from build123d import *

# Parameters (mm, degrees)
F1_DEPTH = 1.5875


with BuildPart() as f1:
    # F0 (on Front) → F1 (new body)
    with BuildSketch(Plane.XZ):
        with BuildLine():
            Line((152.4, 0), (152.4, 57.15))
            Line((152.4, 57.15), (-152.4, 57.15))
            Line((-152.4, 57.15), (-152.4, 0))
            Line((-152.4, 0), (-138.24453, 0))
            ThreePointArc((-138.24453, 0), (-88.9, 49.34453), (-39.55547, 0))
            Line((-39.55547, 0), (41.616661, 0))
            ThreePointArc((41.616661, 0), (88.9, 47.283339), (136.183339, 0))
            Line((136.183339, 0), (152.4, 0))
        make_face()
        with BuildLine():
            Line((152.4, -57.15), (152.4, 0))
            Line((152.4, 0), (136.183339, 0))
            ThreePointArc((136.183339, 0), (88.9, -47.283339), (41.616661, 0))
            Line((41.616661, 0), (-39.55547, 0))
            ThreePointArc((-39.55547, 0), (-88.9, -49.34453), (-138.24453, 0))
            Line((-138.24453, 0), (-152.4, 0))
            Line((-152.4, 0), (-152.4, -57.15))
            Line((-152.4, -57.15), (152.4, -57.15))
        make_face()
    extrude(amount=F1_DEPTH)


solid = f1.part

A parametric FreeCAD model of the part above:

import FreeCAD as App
import Part
import Sketcher

V = App.Vector
Q = App.Units.Quantity

doc = App.newDocument("Part")
body = doc.addObject("PartDesign::Body", "Body")

sketch1 = body.newObject("Sketcher::SketchObject", "Sketch")
sketch1.AttachmentSupport = (doc.getObject("XZ_Plane"), [""])
sketch1.MapMode = "FlatFace"
sketch1.addGeometry(Part.LineSegment(V(152, 57, 0), V(-152, 57, 0)), False)
sketch1.addGeometry(Part.LineSegment(V(-152, 57, 0), V(-152, -57, 0)), False)
sketch1.addGeometry(Part.LineSegment(V(-152, -57, 0), V(152, -57, 0)), False)
sketch1.addGeometry(Part.LineSegment(V(152, -57, 0), V(152, 57, 0)), False)
sketch1.addGeometry(Part.Circle(V(-89, 0, 0), V(0, 0, 1), 49), False)
sketch1.addGeometry(Part.Circle(V(89, 0, 0), V(0, 0, 1), 47), False)
sketch1.addConstraint(Sketcher.Constraint("Coincident", 0, 2, 1, 1))
sketch1.addConstraint(Sketcher.Constraint("Coincident", 1, 2, 2, 1))
sketch1.addConstraint(Sketcher.Constraint("Coincident", 2, 2, 3, 1))
sketch1.addConstraint(Sketcher.Constraint("Coincident", 3, 2, 0, 1))
sketch1.addConstraint(Sketcher.Constraint("Horizontal", 0))
sketch1.addConstraint(Sketcher.Constraint("Vertical", 1))
sketch1.addConstraint(Sketcher.Constraint("Horizontal", 2))
sketch1.addConstraint(Sketcher.Constraint("Vertical", 3))
sketch1.addConstraint(Sketcher.Constraint("Symmetric", 4, 3, 5, 3, -1, 1))
sketch1.addConstraint(Sketcher.Constraint("Symmetric", 0, 2, 2, 2, -1, 1))
sketch1.addConstraint(Sketcher.Constraint("PointOnObject", 4, 3, -1))
sketch1.addConstraint(Sketcher.Constraint("DistanceX", 0, 2, 0, 1, Q("12 in")))
sketch1.addConstraint(Sketcher.Constraint("DistanceY", 1, 2, 1, 1, Q("4.5 in")))
sketch1.addConstraint(Sketcher.Constraint("DistanceX", 4, 3, 5, 3, Q("7 in")))
sketch1.addConstraint(Sketcher.Constraint("Diameter", 4, 98.68906))
sketch1.addConstraint(Sketcher.Constraint("Diameter", 5, 94.566678))
pad1 = body.newObject("PartDesign::Pad", "Pad")
pad1.Profile = sketch1
pad1.Length = Q("0.0625 in")

doc.recompute()
